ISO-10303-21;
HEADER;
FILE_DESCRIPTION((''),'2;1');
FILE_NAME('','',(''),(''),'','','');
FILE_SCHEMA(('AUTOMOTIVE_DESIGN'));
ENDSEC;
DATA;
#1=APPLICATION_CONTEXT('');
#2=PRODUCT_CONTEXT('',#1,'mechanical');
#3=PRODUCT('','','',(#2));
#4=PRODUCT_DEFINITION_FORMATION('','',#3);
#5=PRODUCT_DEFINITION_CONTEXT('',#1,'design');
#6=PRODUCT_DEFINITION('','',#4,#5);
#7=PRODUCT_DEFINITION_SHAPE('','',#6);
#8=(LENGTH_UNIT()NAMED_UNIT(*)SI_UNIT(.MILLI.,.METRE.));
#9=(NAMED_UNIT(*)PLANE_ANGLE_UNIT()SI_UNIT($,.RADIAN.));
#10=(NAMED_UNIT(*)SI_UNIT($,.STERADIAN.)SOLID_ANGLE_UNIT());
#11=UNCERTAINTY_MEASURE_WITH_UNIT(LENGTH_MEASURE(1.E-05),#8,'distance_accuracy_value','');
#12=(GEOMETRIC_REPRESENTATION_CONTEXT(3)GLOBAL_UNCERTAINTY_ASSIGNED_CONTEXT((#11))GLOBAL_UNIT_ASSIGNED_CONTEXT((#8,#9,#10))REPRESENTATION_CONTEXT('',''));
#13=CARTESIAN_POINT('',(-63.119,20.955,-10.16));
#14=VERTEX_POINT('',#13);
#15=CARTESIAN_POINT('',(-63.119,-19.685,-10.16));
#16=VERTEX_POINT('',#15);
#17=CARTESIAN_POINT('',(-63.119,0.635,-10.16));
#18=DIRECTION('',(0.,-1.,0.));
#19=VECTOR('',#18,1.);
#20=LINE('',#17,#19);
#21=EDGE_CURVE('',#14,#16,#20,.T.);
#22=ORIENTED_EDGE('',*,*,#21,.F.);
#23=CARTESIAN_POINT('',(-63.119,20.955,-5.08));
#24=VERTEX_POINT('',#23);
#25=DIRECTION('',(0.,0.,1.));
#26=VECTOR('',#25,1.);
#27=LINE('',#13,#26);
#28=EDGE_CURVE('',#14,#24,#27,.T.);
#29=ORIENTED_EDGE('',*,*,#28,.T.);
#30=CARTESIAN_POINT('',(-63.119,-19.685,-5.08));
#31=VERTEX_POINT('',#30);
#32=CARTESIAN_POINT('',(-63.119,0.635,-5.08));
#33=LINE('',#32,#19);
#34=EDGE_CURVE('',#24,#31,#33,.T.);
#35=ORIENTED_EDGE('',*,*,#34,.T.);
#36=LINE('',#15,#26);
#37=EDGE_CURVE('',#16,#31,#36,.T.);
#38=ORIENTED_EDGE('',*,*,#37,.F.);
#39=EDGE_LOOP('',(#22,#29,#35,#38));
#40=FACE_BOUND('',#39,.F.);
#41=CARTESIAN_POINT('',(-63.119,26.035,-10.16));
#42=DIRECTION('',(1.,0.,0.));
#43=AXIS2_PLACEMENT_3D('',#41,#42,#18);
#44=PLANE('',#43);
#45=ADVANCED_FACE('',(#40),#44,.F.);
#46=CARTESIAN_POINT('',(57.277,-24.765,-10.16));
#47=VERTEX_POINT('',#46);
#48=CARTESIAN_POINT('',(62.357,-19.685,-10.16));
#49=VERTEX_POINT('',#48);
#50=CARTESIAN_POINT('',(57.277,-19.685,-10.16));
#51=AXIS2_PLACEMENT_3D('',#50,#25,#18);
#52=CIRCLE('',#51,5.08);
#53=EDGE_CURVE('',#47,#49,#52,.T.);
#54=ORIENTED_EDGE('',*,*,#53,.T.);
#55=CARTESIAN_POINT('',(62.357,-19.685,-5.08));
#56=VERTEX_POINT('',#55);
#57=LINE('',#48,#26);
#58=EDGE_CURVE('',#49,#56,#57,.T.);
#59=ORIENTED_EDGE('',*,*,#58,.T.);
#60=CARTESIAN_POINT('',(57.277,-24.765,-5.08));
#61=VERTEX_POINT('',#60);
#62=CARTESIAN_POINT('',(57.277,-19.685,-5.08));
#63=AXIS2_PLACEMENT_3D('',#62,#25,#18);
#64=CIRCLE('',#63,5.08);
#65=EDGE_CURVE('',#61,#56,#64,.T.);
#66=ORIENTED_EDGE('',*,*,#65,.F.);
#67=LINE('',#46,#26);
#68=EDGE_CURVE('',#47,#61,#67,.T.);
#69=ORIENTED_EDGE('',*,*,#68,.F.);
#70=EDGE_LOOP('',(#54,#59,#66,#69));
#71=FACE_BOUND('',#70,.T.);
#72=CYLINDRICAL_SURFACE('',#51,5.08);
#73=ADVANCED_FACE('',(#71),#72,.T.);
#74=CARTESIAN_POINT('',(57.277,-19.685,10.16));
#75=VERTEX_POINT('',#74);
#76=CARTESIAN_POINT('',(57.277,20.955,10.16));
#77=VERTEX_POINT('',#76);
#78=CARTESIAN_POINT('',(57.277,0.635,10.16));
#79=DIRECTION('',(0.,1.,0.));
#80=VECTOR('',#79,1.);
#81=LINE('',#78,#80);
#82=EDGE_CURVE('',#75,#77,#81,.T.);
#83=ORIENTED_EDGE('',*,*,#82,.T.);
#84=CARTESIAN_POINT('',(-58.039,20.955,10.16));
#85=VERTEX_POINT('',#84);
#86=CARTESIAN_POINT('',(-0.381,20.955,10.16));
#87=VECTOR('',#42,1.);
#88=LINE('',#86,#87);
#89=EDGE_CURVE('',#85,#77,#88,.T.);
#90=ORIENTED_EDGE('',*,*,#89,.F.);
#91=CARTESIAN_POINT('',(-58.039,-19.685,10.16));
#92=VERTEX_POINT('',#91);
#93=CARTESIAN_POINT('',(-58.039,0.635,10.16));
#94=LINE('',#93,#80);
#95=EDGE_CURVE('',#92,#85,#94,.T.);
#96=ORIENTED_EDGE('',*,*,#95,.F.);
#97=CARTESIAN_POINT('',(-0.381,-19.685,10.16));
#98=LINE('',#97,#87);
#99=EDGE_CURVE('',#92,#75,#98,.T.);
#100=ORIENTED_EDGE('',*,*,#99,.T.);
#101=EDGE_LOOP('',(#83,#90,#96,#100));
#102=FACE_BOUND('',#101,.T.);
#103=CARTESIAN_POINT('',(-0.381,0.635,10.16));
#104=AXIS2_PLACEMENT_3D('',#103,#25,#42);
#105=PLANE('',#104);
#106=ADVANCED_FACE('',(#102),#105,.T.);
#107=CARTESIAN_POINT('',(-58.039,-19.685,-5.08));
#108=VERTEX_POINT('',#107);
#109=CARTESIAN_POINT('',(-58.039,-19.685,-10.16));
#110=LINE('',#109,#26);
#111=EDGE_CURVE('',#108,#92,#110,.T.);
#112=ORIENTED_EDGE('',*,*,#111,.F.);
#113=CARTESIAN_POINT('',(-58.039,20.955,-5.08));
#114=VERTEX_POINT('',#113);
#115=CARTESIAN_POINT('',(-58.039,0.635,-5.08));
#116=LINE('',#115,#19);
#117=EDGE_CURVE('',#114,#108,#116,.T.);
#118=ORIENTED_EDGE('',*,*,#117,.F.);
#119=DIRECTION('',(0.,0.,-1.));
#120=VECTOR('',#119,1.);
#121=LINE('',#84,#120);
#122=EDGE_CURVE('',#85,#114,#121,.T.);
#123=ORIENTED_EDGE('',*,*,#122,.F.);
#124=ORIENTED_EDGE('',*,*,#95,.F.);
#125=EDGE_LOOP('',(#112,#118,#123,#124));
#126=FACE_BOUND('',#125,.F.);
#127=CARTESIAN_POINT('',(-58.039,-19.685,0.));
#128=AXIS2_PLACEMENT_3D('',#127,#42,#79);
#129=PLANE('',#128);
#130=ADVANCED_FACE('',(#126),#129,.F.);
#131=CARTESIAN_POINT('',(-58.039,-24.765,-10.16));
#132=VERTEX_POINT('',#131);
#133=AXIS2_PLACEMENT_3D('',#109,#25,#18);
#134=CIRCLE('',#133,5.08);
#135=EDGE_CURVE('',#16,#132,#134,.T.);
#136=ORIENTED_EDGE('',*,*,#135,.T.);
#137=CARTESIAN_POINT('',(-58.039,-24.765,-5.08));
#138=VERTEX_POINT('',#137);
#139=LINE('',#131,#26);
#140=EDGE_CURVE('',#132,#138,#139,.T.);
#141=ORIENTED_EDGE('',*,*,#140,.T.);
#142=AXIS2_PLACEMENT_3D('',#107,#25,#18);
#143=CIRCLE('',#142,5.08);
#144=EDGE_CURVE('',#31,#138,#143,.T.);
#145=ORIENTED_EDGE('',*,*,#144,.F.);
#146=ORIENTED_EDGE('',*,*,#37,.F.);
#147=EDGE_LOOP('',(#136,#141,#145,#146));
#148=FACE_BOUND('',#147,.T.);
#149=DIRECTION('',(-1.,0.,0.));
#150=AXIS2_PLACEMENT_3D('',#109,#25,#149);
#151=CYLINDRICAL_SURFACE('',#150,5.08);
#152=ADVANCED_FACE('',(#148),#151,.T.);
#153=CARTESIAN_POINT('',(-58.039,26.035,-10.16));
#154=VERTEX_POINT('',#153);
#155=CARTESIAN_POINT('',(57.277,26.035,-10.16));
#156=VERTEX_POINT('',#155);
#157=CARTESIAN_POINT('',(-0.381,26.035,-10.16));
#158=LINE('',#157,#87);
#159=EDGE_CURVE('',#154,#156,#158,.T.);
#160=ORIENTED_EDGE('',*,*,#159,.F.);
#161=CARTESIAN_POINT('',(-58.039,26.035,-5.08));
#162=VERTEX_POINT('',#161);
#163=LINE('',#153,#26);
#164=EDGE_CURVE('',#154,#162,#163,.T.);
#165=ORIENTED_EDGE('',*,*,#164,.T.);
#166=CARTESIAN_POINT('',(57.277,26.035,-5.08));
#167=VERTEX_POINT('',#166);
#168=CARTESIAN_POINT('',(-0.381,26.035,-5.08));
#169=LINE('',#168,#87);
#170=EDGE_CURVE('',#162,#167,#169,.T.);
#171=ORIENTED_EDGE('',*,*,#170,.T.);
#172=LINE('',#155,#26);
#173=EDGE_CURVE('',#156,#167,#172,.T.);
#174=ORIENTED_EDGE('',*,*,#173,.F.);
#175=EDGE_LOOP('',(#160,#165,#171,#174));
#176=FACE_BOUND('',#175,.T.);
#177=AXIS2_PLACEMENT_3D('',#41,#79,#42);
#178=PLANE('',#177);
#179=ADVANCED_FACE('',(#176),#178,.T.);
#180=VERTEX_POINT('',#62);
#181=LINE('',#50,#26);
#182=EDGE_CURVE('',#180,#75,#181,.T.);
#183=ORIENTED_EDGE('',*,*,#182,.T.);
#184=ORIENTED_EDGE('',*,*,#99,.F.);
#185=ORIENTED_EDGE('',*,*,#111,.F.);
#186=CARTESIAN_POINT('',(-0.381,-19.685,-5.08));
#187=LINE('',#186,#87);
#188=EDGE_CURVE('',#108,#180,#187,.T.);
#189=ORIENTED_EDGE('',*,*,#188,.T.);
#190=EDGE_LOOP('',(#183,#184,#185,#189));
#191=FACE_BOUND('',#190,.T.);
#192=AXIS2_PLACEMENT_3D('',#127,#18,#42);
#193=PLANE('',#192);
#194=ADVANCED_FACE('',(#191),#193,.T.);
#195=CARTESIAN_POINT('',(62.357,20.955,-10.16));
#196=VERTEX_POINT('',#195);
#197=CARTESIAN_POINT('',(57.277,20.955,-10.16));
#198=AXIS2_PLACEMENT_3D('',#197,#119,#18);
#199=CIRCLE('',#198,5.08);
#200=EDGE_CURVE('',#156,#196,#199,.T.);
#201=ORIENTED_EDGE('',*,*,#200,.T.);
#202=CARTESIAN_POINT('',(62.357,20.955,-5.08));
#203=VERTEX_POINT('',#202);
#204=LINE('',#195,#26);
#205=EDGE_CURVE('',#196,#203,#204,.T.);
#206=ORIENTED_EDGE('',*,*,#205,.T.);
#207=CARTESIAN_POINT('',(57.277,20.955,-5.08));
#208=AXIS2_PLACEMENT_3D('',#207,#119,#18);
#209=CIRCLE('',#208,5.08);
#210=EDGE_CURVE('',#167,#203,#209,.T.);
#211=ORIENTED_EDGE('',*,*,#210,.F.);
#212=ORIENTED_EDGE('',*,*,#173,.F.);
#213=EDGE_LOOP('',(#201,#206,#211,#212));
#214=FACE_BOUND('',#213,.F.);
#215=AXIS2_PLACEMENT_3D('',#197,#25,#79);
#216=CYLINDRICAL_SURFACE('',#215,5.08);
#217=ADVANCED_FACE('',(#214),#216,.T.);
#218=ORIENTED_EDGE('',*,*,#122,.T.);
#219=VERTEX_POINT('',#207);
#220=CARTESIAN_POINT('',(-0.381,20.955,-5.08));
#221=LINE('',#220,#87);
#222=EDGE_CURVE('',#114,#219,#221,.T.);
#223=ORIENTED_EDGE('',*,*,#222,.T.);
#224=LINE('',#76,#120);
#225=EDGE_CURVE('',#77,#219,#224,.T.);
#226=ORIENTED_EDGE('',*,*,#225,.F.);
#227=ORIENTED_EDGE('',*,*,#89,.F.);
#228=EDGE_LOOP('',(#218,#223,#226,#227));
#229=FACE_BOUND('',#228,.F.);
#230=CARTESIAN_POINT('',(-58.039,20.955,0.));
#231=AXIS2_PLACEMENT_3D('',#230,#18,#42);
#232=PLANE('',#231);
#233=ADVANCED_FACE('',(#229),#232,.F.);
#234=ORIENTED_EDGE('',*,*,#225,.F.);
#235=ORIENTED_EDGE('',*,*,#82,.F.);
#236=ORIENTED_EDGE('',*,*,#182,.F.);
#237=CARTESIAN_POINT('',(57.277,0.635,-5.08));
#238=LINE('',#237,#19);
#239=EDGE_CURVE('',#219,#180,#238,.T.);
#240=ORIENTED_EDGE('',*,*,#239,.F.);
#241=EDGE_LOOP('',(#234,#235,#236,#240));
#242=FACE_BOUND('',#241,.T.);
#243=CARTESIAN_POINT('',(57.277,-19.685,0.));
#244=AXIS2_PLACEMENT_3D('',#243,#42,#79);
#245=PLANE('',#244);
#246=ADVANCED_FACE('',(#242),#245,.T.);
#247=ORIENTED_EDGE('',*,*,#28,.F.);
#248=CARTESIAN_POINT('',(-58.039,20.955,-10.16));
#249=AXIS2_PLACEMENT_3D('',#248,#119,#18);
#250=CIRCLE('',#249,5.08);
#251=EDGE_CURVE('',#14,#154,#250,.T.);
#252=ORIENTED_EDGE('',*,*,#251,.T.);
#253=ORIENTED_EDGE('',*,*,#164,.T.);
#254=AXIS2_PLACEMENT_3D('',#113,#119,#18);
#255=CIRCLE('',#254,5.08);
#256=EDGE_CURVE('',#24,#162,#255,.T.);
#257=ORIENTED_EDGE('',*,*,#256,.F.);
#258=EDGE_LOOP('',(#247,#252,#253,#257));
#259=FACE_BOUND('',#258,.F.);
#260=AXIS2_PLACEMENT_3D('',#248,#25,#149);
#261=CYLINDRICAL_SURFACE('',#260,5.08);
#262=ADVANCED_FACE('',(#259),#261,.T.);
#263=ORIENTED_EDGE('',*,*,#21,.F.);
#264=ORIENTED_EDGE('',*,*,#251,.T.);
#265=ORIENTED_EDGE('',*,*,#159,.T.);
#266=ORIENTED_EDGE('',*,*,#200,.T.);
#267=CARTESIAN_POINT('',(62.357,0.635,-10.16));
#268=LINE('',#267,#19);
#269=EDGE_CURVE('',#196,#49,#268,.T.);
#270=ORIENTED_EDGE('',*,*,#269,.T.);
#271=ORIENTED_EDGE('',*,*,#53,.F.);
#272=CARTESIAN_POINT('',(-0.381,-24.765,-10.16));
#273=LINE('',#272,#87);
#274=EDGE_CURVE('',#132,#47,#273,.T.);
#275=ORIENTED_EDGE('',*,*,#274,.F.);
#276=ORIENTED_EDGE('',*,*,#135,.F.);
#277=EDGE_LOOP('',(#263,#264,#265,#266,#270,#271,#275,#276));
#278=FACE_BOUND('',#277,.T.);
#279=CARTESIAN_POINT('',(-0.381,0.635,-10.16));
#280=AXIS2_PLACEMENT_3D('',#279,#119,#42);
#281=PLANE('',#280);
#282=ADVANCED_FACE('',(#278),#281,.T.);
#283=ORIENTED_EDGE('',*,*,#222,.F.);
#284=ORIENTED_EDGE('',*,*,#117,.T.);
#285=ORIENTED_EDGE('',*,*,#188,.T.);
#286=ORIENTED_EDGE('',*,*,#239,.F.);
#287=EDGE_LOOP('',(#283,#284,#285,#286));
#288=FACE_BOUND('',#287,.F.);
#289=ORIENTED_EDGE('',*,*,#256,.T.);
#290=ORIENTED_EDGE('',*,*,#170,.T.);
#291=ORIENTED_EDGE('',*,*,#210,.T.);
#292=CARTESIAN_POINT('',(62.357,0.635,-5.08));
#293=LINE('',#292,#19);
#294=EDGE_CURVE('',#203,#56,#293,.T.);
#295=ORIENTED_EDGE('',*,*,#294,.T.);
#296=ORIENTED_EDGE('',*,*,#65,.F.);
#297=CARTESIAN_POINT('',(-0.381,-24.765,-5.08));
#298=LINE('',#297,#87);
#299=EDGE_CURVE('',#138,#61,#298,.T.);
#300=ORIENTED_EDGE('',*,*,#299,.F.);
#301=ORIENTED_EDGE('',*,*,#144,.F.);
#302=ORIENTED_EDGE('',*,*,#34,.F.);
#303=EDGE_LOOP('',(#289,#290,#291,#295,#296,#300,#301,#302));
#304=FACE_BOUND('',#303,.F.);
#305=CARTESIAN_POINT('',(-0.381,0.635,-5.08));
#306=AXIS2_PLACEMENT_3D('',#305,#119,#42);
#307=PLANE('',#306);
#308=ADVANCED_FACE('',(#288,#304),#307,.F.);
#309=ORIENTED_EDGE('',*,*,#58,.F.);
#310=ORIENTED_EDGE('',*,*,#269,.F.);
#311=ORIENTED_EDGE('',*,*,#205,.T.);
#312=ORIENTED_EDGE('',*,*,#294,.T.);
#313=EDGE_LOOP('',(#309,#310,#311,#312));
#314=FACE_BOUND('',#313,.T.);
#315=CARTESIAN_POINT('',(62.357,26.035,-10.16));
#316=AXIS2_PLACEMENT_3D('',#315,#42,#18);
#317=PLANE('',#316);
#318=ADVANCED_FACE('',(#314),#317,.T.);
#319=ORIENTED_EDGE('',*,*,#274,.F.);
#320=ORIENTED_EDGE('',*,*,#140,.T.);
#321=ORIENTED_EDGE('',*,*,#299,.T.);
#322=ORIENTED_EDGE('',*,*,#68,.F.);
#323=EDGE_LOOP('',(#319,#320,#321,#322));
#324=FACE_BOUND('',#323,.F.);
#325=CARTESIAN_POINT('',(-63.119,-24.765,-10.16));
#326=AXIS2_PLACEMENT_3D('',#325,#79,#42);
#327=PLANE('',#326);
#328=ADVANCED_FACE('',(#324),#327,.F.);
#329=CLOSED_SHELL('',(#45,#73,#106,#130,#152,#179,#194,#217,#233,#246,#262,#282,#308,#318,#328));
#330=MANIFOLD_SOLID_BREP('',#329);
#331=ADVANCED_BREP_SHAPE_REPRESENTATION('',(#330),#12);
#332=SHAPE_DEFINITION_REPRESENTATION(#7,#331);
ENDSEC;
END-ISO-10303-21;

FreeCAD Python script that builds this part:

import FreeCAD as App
import Part
import Sketcher

V = App.Vector
Q = App.Units.Quantity


def edges_at(feature, points):
    """Names of the edges that pass closest to the given points."""
    edges = feature.Shape.Edges
    near = lambda p: min(range(len(edges)), key=lambda i: edges[i].distToShape(Part.Vertex(*p))[0])
    return sorted({f"Edge{near(p) + 1}" for p in points})

doc = App.newDocument("Part")
body = doc.addObject("PartDesign::Body", "Body")

# Sketch on XY plane
sketch1 = doc.addObject("Sketcher::SketchObject", "Sketch")
body.addObject(sketch1)
sketch1.AttachmentSupport = (doc.XY_Plane, [""])
sketch1.MapMode = "FlatFace"
sketch1.addGeometry([
    Part.LineSegment(V(-58, 21, 0), V(-58, -20, 0)),
    Part.LineSegment(V(-58, -20, 0), V(57, -20, 0)),
    Part.LineSegment(V(57, -20, 0), V(57, 21, 0)),
    Part.LineSegment(V(57, 21, 0), V(-58, 21, 0)),
], False)
sketch1.addConstraint([
    Sketcher.Constraint("Coincident", 0, 2, 1, 1),
    Sketcher.Constraint("Coincident", 1, 2, 2, 1),
    Sketcher.Constraint("Coincident", 2, 2, 3, 1),
    Sketcher.Constraint("Coincident", 3, 2, 0, 1),
    Sketcher.Constraint("Vertical", 0),
    Sketcher.Constraint("Horizontal", 1),
    Sketcher.Constraint("Vertical", 2),
    Sketcher.Constraint("Horizontal", 3),
    Sketcher.Constraint("DistanceY", 0, 2, 0, 1, Q("1.6 in")),
    Sketcher.Constraint("DistanceX", 1, 1, 1, 2, Q("4.54 in")),
    Sketcher.Constraint("DistanceX", 0, 2, -1, 1, Q("2.285 in")),
    Sketcher.Constraint("DistanceY", 0, 2, -1, 1, Q("0.775 in")),
])
pad1 = doc.addObject("PartDesign::Pad", "Pad")
body.addObject(pad1)
pad1.Profile = sketch1
pad1.Length = Q("0.8 in")
pad1.Midplane = True

# Sketch on XY plane
sketch2 = doc.addObject("Sketcher::SketchObject", "Sketch001")
body.addObject(sketch2)
sketch2.AttachmentSupport = (doc.XY_Plane, [""])
sketch2.MapMode = "FlatFace"
sketch2.AttachmentOffset = App.Placement(V(0, 0, -0.4 * 25.4), App.Rotation())
sketch2.addGeometry([
    Part.LineSegment(V(-63, -25, 0), V(-63, 26, 0)),  # 0
    Part.LineSegment(V(-63, 26, 0), V(62, 26, 0)),  # 1
    Part.LineSegment(V(62, 26, 0), V(62, -25, 0)),  # 2
    Part.LineSegment(V(62, -25, 0), V(-63, -25, 0)),  # 3
    Part.LineSegment(V(57, 21, 0), V(-58, 21, 0)),  # 4
    Part.LineSegment(V(-58, 21, 0), V(-58, -20, 0)),  # 5
    Part.LineSegment(V(-58, -20, 0), V(57, -20, 0)),  # 6
    Part.LineSegment(V(57, -20, 0), V(57, 21, 0)),  # 7
], False)
sketch2.addConstraint([
    Sketcher.Constraint("Coincident", 0, 2, 1, 1),
    Sketcher.Constraint("Coincident", 1, 2, 2, 1),
    Sketcher.Constraint("Coincident", 2, 2, 3, 1),
    Sketcher.Constraint("Coincident", 3, 2, 0, 1),
    Sketcher.Constraint("Coincident", 4, 2, 5, 1),
    Sketcher.Constraint("Coincident", 5, 2, 6, 1),
    Sketcher.Constraint("Coincident", 6, 2, 7, 1),
    Sketcher.Constraint("Coincident", 7, 2, 4, 1),
    Sketcher.Constraint("Vertical", 0),
    Sketcher.Constraint("Horizontal", 1),
    Sketcher.Constraint("Vertical", 2),
    Sketcher.Constraint("Horizontal", 3),
    Sketcher.Constraint("Horizontal", 4),
    Sketcher.Constraint("Vertical", 5),
    Sketcher.Constraint("Horizontal", 6),
    Sketcher.Constraint("Vertical", 7),
    Sketcher.Constraint("DistanceY", 0, 1, 0, 2, Q("2 in")),
    Sketcher.Constraint("DistanceY", 5, 2, 5, 1, Q("1.6 in")),
    Sketcher.Constraint("DistanceX", 1, 1, 1, 2, Q("4.94 in")),
    Sketcher.Constraint("DistanceX", 4, 2, 4, 1, Q("4.54 in")),
    Sketcher.Constraint("DistanceX", 0, 2, 4, 2, Q("0.2 in")),
    Sketcher.Constraint("DistanceY", 4, 2, 0, 2, Q("0.2 in")),
    Sketcher.Constraint("DistanceX", 0, 2, -1, 1, Q("2.485 in")),
    Sketcher.Constraint("DistanceY", -1, 1, 0, 2, Q("1.025 in")),
])
pad2 = doc.addObject("PartDesign::Pad", "Pad001")
body.addObject(pad2)
pad2.Profile = sketch2
pad2.Length = Q("0.2 in")
doc.recompute()

fillet = doc.addObject("PartDesign::Fillet", "Fillet")
body.addObject(fillet)
fillet.Base = (pad2, edges_at(pad2, [
    (-63.119, -24.765, -7.62),
    (62.357, -24.765, -7.62),
    (-63.119, 26.035, -7.62),
    (62.357, 26.035, -7.62),
]))
fillet.Radius = Q("0.2 in")

doc.recompute()
